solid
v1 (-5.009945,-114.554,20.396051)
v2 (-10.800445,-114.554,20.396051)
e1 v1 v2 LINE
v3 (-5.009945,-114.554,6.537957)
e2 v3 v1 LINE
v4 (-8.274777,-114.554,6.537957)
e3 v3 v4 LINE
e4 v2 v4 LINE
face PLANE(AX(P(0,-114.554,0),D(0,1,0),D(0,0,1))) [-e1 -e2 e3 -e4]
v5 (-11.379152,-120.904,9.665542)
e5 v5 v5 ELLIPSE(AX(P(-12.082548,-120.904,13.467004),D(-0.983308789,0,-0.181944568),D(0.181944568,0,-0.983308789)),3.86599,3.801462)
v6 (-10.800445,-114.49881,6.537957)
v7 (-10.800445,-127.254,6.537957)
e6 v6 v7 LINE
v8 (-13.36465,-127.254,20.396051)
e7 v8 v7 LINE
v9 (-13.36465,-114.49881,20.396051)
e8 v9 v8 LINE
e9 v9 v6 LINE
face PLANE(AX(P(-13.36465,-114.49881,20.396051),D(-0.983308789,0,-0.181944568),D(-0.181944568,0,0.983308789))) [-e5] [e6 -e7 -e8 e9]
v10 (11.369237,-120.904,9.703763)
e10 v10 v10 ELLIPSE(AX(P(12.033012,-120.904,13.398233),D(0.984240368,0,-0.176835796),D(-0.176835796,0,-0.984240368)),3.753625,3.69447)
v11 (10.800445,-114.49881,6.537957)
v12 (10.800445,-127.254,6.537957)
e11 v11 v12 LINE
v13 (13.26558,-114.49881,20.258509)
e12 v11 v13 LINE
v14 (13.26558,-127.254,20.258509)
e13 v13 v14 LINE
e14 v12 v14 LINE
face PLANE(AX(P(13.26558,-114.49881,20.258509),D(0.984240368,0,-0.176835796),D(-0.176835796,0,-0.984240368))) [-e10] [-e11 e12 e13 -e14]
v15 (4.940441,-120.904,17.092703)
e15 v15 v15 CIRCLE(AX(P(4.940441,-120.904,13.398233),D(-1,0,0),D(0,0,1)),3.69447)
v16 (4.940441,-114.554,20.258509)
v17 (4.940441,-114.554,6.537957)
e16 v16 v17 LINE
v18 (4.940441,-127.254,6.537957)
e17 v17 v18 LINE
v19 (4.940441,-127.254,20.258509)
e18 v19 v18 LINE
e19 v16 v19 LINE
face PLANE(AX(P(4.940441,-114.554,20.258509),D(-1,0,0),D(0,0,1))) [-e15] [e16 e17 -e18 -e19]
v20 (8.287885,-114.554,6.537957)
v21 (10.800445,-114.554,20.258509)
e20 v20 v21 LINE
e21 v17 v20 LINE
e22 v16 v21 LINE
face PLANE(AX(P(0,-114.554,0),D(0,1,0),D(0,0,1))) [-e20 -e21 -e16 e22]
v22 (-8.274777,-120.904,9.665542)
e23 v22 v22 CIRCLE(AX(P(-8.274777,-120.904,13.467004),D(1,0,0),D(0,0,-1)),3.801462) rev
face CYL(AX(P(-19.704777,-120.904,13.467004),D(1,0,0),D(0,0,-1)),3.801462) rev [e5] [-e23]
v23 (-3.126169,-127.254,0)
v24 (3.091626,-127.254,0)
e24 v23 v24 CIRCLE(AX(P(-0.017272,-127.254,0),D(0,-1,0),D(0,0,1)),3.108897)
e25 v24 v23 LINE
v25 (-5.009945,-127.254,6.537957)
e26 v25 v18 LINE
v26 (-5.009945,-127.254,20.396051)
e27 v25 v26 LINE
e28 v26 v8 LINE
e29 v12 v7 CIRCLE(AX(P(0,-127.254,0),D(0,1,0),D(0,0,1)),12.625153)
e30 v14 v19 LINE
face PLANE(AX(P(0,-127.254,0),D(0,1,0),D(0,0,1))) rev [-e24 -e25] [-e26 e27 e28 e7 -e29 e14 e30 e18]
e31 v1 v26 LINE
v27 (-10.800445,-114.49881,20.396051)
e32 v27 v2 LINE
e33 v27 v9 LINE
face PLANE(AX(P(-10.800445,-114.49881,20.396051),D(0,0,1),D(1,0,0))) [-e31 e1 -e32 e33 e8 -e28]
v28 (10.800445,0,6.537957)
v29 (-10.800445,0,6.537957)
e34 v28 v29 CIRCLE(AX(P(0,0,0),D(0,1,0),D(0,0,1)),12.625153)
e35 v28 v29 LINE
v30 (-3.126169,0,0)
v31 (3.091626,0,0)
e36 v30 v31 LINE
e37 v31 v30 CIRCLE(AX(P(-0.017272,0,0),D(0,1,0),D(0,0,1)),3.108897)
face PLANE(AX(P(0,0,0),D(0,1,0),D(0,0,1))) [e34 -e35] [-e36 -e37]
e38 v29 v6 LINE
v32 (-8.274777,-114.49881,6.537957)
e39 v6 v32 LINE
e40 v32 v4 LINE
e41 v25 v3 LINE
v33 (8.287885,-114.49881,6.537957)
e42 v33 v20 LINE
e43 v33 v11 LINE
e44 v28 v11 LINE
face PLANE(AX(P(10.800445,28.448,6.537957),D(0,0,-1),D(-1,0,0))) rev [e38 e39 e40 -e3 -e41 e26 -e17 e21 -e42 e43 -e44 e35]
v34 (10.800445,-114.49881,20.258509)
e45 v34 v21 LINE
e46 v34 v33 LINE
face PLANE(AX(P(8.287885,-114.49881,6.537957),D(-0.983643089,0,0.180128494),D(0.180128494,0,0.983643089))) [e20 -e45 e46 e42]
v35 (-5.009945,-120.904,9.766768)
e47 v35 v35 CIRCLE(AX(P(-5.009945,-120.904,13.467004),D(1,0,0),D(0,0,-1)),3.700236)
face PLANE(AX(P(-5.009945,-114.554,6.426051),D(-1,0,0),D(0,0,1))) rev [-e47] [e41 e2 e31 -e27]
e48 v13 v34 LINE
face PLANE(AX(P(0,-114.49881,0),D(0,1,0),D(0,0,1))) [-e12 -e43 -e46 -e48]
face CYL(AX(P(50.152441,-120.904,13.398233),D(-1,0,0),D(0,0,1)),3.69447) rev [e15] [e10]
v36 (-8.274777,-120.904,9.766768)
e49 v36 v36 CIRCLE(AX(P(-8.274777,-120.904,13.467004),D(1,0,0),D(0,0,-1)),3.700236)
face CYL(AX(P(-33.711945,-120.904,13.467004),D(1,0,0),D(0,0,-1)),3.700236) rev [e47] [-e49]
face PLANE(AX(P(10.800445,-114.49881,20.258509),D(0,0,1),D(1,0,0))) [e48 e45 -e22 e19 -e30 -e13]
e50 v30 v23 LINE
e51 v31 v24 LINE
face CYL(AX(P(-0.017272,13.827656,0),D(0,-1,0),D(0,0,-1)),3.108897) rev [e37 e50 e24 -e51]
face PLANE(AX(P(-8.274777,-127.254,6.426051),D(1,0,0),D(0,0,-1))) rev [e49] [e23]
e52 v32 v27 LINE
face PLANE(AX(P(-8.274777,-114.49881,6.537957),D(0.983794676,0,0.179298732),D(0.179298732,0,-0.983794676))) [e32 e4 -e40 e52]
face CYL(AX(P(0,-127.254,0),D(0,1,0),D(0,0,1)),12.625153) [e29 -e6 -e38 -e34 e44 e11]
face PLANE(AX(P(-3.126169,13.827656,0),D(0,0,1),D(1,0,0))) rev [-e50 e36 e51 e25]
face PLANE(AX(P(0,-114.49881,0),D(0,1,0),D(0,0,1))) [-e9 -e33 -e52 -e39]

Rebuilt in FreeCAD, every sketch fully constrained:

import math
import FreeCAD as App
import Part
import Sketcher

V = App.Vector
Q = App.Units.Quantity


def add_polygon(sketch, points):
    """Adds a closed chain of lines whose ends are joined by coincident constraints."""
    first, n = sketch.GeometryCount, len(points)
    for a, b in zip(points, points[1:] + points[:1]):
        sketch.addGeometry(Part.LineSegment(App.Vector(*a, 0), App.Vector(*b, 0)), False)
    for i in range(n):
        sketch.addConstraint(Sketcher.Constraint("Coincident", first + i, 2, first + (i + 1) % n, 1))

doc = App.newDocument("Part")
body = doc.addObject("PartDesign::Body", "Body")

# Sketch on XZ plane
sketch1 = body.newObject("Sketcher::SketchObject", "Sketch")
sketch1.AttachmentSupport = (doc.getObject("XZ_Plane"), [""])
sketch1.MapMode = "FlatFace"
sketch1.addGeometry(Part.Circle(V(0, 0, 0), V(0, 0, 1), 13), False)
sketch1.addConstraint([
    Sketcher.Constraint("Coincident", 0, 3, -1, 1),
    Sketcher.Constraint("Diameter", 0, 25.250306),
])
pad1 = body.newObject("PartDesign::Pad", "Pad")
pad1.Profile = sketch1
pad1.Length = Q("5.01 in")

# Sketch on XZ plane
sketch2 = body.newObject("Sketcher::SketchObject", "Sketch001")
sketch2.AttachmentSupport = (doc.getObject("XZ_Plane"), [""])
sketch2.MapMode = "FlatFace"
sketch2.AttachmentOffset = App.Placement(V(0, 0, 5.01 * 25.4), App.Rotation())
add_polygon(sketch2, [(11, 7), (11, 13), (-11, 13), (-11, 7)])  # lines 0-3
sketch2.addConstraint([
    Sketcher.Constraint("Vertical", 0),
    Sketcher.Constraint("Horizontal", 1),
    Sketcher.Constraint("Vertical", 2),
    Sketcher.Constraint("Horizontal", 3),
    Sketcher.Constraint("DistanceY", -1, 1, 2, 2, Q("0.2573999 in")),
    Sketcher.Constraint("DistanceX", 1, 2, 1, 1, 21.60089),
    Sketcher.Constraint("DistanceY", 0, 1, 0, 2, 6.087197),
    Sketcher.Constraint("DistanceX", -1, 1, 0, 2, 10.800445),
])
pocket1 = body.newObject("PartDesign::Pocket", "Pocket")
pocket1.Profile = sketch2
pocket1.Length = Q("6.13 in")

# Sketch on XZ plane
sketch3 = body.newObject("Sketcher::SketchObject", "Sketch002")
sketch3.AttachmentSupport = (doc.getObject("XZ_Plane"), [""])
sketch3.MapMode = "FlatFace"
sketch3.AttachmentOffset = App.Placement(V(0, 0, 5.01 * 25.4), App.Rotation())
sketch3.addGeometry([
    Part.LineSegment(V(3.1, 0, 0), V(-3.1, 0, 0)),
    Part.ArcOfCircle(Part.Circle(V(0, 0, 0), V(0, 0, 1), 3.1), math.radians(-180), math.radians(0)),
], False)
sketch3.addConstraint([
    Sketcher.Constraint("Coincident", 0, 1, 1, 2),
    Sketcher.Constraint("Coincident", 1, 1, 0, 2),
    Sketcher.Constraint("Horizontal", 0),
    Sketcher.Constraint("PointOnObject", 1, 3, -1),
    Sketcher.Constraint("PointOnObject", 0, 1, -1),
    Sketcher.Constraint("Radius", 1, 3.108897),
    Sketcher.Constraint("DistanceX", 1, 3, -1, 1, 0.017272),
])
pocket2 = body.newObject("PartDesign::Pocket", "Pocket001")
pocket2.Profile = sketch3
pocket2.Length = 141.081656

# Sketch on XZ plane
sketch4 = body.newObject("Sketcher::SketchObject", "Sketch003")
sketch4.AttachmentSupport = (doc.getObject("XZ_Plane"), [""])
sketch4.MapMode = "FlatFace"
sketch4.AttachmentOffset = App.Placement(V(0, 0, 5.01 * 25.4), App.Rotation())
add_polygon(sketch4, [(-10.8, 6.5), (-8.3, 6.5), (-10.8, 20.4), (-13.4, 20.4)])  # lines 0-3
sketch4.addConstraint([
    Sketcher.Constraint("Horizontal", 0),
    Sketcher.Constraint("Horizontal", 2),
    Sketcher.Constraint("Vertical", 1, 2, 3, 2),
    Sketcher.Constraint("DistanceY", -1, 1, 0, 2, Q("0.2573999 in")),
    Sketcher.Constraint("DistanceX", 0, 1, 0, 2, 2.525668),
    Sketcher.Constraint("Distance", 1, 14.086369),
    Sketcher.Constraint("Distance", 3, 14.09333),
    Sketcher.Constraint("DistanceX", 2, 2, -1, 1, 13.36465),
])
pad2 = body.newObject("PartDesign::Pad", "Pad001")
pad2.Profile = sketch4
pad2.Length = 12.75519
pad2.Reversed = True

# Sketch on XZ plane
sketch5 = body.newObject("Sketcher::SketchObject", "Sketch004")
sketch5.AttachmentSupport = (doc.getObject("XZ_Plane"), [""])
sketch5.MapMode = "FlatFace"
sketch5.AttachmentOffset = App.Placement(V(0, 0, 5.01 * 25.4), App.Rotation())
add_polygon(sketch5, [(8.3, 6.5), (10.8, 6.5), (13.3, 20.3), (10.8, 20.3)])  # lines 0-3
sketch5.addConstraint([
    Sketcher.Constraint("Horizontal", 0),
    Sketcher.Constraint("Horizontal", 2),
    Sketcher.Constraint("Vertical", 0, 2, 2, 2),
    Sketcher.Constraint("DistanceY", -1, 1, 0, 2, Q("0.2573999 in")),
    Sketcher.Constraint("DistanceX", 0, 1, 0, 2, 2.51256),
    Sketcher.Constraint("Distance", 3, 13.948711),
    Sketcher.Constraint("DistanceX", 2, 2, 2, 1, 2.465134),
    Sketcher.Constraint("DistanceX", -1, 1, 1, 2, 13.26558),
])
pad3 = body.newObject("PartDesign::Pad", "Pad002")
pad3.Profile = sketch5
pad3.Length = 12.75519
pad3.Reversed = True

# Sketch on XZ plane
sketch6 = body.newObject("Sketcher::SketchObject", "Sketch005")
sketch6.AttachmentSupport = (doc.getObject("XZ_Plane"), [""])
sketch6.MapMode = "FlatFace"
sketch6.AttachmentOffset = App.Placement(V(0, 0, 5.01 * 25.4), App.Rotation())
add_polygon(sketch6, [(-8.3, 20.4), (-10.8, 20.4), (-8.3, 6.5)])  # lines 0-2
sketch6.addConstraint([
    Sketcher.Constraint("Horizontal", 0),
    Sketcher.Constraint("Vertical", 2),
    Sketcher.Constraint("DistanceY", -1, 1, 1, 2, Q("0.2573999 in")),
    Sketcher.Constraint("DistanceX", 0, 2, 0, 1, 2.525668),
    Sketcher.Constraint("Distance", 1, 14.086369),
    Sketcher.Constraint("DistanceX", 0, 2, -1, 1, 10.800445),
])
pad4 = body.newObject("PartDesign::Pad", "Pad003")
pad4.Profile = sketch6
pad4.Length = Q("0.5 in")
pad4.Reversed = True

# Sketch on XZ plane
sketch7 = body.newObject("Sketcher::SketchObject", "Sketch006")
sketch7.AttachmentSupport = (doc.getObject("XZ_Plane"), [""])
sketch7.MapMode = "FlatFace"
sketch7.AttachmentOffset = App.Placement(V(0, 0, 5.01 * 25.4), App.Rotation())
add_polygon(sketch7, [(8.3, 20.3), (8.3, 6.5), (10.8, 20.3)])  # lines 0-2
sketch7.addConstraint([
    Sketcher.Constraint("Vertical", 0),
    Sketcher.Constraint("Horizontal", 2),
    Sketcher.Constraint("DistanceY", -1, 1, 0, 2, Q("0.2573999 in")),
    Sketcher.Constraint("DistanceX", 2, 2, 2, 1, 2.51256),
    Sketcher.Constraint("Distance", 1, 13.948711),
    Sketcher.Constraint("DistanceX", -1, 1, 0, 2, 8.287885),
])
pad5 = body.newObject("PartDesign::Pad", "Pad004")
pad5.Profile = sketch7
pad5.Length = Q("0.5 in")
pad5.Reversed = True

# Sketch on YZ plane
sketch8 = body.newObject("Sketcher::SketchObject", "Sketch007")
sketch8.AttachmentSupport = (doc.getObject("YZ_Plane"), [""])
sketch8.MapMode = "FlatFace"
sketch8.AttachmentOffset = App.Placement(V(0, 0, 8.287885), App.Rotation())
sketch8.addGeometry(Part.Circle(V(-120.9, 13.4, 0), V(0, 0, 1), 3.7), False)
sketch8.addConstraint([
    Sketcher.Constraint("Diameter", 0, 7.378),
    Sketcher.Constraint("DistanceX", 0, 3, -1, 1, Q("4.76 in")),
    Sketcher.Constraint("DistanceY", -1, 1, 0, 3, 13.398233),
])
pocket3 = body.newObject("PartDesign::Pocket", "Pocket002")
pocket3.Profile = sketch8
pocket3.Length = Q("0.55 in")
pocket3.Reversed = True

# Sketch on YZ plane
sketch9 = body.newObject("Sketcher::SketchObject", "Sketch008")
sketch9.AttachmentSupport = (doc.getObject("YZ_Plane"), [""])
sketch9.MapMode = "FlatFace"
sketch9.AttachmentOffset = App.Placement(V(0, 0, -8.274777), App.Rotation())
sketch9.addGeometry(Part.Circle(V(-120.9, 13.5, 0), V(0, 0, 1), 3.8), False)
sketch9.addConstraint([
    Sketcher.Constraint("DistanceX", 0, 3, -1, 1, Q("4.76 in")),
    Sketcher.Constraint("Diameter", 0, 7.602924),
    Sketcher.Constraint("DistanceY", -1, 1, 0, 3, 13.467004),
])
pocket4 = body.newObject("PartDesign::Pocket", "Pocket003")
pocket4.Profile = sketch9
pocket4.Length = Q("0.45 in")

# Sketch on XZ plane
sketch10 = body.newObject("Sketcher::SketchObject", "Sketch009")
sketch10.AttachmentSupport = (doc.getObject("XZ_Plane"), [""])
sketch10.MapMode = "FlatFace"
sketch10.AttachmentOffset = App.Placement(V(0, 0, 5.01 * 25.4), App.Rotation())
add_polygon(sketch10, [(4.9, 20.3), (4.9, 6.5), (8.3, 6.5), (8.3, 20.3)])  # lines 0-3
sketch10.addConstraint([
    Sketcher.Constraint("Vertical", 0),
    Sketcher.Constraint("Horizontal", 1),
    Sketcher.Constraint("Vertical", 2),
    Sketcher.Constraint("Horizontal", 3),
    Sketcher.Constraint("DistanceY", -1, 1, 0, 2, Q("0.2573999 in")),
    Sketcher.Constraint("DistanceX", 1, 1, 1, 2, 3.347444),
    Sketcher.Constraint("DistanceY", 0, 2, 0, 1, 13.720553),
    Sketcher.Constraint("DistanceX", -1, 1, 0, 2, 4.940441),
])
pad6 = body.newObject("PartDesign::Pad", "Pad005")
pad6.Profile = sketch10
pad6.Length = Q("0.5 in")
pad6.Reversed = True

# Sketch on XY plane
sketch11 = body.newObject("Sketcher::SketchObject", "Sketch010")
sketch11.AttachmentSupport = (doc.getObject("XY_Plane"), [""])
sketch11.MapMode = "FlatFace"
sketch11.AttachmentOffset = App.Placement(V(0, 0, 20.396051), App.Rotation())
add_polygon(sketch11, [(-8.3, -114.6), (-8.3, -127.3), (-5, -127.3), (-5, -114.6)])  # lines 0-3
sketch11.addConstraint([
    Sketcher.Constraint("Vertical", 0),
    Sketcher.Constraint("Horizontal", 1),
    Sketcher.Constraint("Vertical", 2),
    Sketcher.Constraint("Horizontal", 3),
    Sketcher.Constraint("DistanceY", 0, 2, 0, 1, Q("0.5 in")),
    Sketcher.Constraint("DistanceY", 0, 2, -1, 1, Q("5.01 in")),
    Sketcher.Constraint("DistanceX", 1, 1, 1, 2, 3.264832),
    Sketcher.Constraint("DistanceX", 0, 2, -1, 1, 8.274777),
])
pad7 = body.newObject("PartDesign::Pad", "Pad006")
pad7.Profile = sketch11
pad7.Length = Q("0.55 in")
pad7.Reversed = True

# Sketch on YZ plane
sketch12 = body.newObject("Sketcher::SketchObject", "Sketch011")
sketch12.AttachmentSupport = (doc.getObject("YZ_Plane"), [""])
sketch12.MapMode = "FlatFace"
sketch12.AttachmentOffset = App.Placement(V(0, 0, 4.940441), App.Rotation())
sketch12.addGeometry(Part.Circle(V(-120.9, 13.4, 0), V(0, 0, 1), 3.7), False)
sketch12.addConstraint([
    Sketcher.Constraint("DistanceX", 0, 3, -1, 1, Q("4.76 in")),
    Sketcher.Constraint("Diameter", 0, 7.388939),
    Sketcher.Constraint("DistanceY", -1, 1, 0, 3, 13.398233),
])
pocket5 = body.newObject("PartDesign::Pocket", "Pocket004")
pocket5.Profile = sketch12
pocket5.Length = Q("1.78 in")
pocket5.Reversed = True

# Sketch on YZ plane
sketch13 = body.newObject("Sketcher::SketchObject", "Sketch012")
sketch13.AttachmentSupport = (doc.getObject("YZ_Plane"), [""])
sketch13.MapMode = "FlatFace"
sketch13.AttachmentOffset = App.Placement(V(0, 0, -5.009945), App.Rotation())
sketch13.addGeometry(Part.Circle(V(-120.9, 13.5, 0), V(0, 0, 1), 3.7), False)
sketch13.addConstraint([
    Sketcher.Constraint("DistanceX", 0, 3, -1, 1, Q("4.76 in")),
    Sketcher.Constraint("Diameter", 0, 7.400472),
    Sketcher.Constraint("DistanceY", -1, 1, 0, 3, 13.467004),
])
pocket6 = body.newObject("PartDesign::Pocket", "Pocket005")
pocket6.Profile = sketch13
pocket6.Length = Q("1.13 in")

doc.recompute()
